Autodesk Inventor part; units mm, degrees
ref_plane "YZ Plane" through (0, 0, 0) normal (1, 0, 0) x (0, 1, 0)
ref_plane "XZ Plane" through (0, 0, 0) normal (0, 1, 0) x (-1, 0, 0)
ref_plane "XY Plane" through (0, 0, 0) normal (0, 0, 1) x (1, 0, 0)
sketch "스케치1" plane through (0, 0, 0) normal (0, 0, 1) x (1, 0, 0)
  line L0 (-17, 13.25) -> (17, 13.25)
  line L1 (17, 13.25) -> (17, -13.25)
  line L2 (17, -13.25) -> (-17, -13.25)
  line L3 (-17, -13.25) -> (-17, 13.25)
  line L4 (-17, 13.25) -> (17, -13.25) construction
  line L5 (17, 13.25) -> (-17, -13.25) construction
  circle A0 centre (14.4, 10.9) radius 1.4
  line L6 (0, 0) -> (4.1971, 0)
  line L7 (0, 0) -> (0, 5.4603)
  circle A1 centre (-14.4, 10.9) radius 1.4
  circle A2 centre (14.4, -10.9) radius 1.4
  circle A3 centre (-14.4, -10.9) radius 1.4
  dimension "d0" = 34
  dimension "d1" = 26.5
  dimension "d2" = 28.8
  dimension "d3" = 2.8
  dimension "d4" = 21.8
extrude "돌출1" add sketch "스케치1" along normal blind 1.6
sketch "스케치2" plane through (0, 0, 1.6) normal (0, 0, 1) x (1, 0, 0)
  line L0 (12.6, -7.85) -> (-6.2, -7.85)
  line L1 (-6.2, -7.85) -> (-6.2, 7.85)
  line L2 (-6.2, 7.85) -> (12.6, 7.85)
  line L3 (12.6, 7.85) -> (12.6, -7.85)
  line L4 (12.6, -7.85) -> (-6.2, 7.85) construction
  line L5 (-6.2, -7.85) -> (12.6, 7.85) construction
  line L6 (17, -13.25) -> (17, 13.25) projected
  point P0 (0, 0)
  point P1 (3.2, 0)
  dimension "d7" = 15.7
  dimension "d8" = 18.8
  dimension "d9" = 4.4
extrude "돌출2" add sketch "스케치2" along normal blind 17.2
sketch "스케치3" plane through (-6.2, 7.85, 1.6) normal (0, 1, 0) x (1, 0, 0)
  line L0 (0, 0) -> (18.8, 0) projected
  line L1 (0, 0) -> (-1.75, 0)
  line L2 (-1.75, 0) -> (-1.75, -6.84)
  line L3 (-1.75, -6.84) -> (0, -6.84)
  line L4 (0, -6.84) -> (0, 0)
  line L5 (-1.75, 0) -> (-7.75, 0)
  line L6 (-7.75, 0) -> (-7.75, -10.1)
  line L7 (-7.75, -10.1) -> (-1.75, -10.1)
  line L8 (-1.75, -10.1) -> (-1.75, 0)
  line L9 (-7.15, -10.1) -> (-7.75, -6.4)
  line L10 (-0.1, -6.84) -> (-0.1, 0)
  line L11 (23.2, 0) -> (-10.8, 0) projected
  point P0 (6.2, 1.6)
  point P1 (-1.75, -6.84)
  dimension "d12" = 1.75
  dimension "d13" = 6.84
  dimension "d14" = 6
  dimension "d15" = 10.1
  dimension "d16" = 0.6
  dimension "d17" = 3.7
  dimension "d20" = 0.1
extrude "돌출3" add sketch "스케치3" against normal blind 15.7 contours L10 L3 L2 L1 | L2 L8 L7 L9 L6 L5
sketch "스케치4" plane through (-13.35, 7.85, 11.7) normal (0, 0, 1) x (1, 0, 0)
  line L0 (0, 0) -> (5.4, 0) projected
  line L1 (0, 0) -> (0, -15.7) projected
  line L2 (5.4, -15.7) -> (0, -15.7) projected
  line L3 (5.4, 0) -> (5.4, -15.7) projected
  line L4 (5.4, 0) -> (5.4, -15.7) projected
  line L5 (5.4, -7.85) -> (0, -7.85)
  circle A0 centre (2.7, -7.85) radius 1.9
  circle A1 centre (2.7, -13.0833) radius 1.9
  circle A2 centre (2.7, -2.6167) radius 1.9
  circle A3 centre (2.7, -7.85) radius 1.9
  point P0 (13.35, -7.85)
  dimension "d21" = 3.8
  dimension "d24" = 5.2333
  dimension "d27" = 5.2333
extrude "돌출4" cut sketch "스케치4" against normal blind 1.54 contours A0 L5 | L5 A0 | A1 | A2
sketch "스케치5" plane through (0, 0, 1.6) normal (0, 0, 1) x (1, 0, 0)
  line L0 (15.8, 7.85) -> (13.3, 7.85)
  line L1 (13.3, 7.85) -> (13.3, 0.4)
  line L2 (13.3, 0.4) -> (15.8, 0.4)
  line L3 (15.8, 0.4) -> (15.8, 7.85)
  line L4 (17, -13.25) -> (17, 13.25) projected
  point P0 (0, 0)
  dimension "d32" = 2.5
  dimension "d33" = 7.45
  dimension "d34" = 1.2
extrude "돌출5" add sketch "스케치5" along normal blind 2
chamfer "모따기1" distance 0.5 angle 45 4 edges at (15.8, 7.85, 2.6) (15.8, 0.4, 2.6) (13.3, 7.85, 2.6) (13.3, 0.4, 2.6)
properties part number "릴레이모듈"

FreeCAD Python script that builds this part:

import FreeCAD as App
import Part
import Sketcher

V = App.Vector


def edges_at(feature, points):
    """Names of the edges that pass closest to the given points."""
    edges = feature.Shape.Edges
    near = lambda p: min(range(len(edges)), key=lambda i: edges[i].distToShape(Part.Vertex(*p))[0])
    return sorted({f"Edge{near(p) + 1}" for p in points})


def add_polygon(sketch, points):
    """Adds a closed chain of lines whose ends are joined by coincident constraints."""
    first, n = sketch.GeometryCount, len(points)
    for a, b in zip(points, points[1:] + points[:1]):
        sketch.addGeometry(Part.LineSegment(App.Vector(*a, 0), App.Vector(*b, 0)), False)
    for i in range(n):
        sketch.addConstraint(Sketcher.Constraint("Coincident", first + i, 2, first + (i + 1) % n, 1))

doc = App.newDocument("Part")
body = doc.addObject("PartDesign::Body", "Body")

sketch1 = body.newObject("Sketcher::SketchObject", "Sketch")
sketch1.AttachmentSupport = (doc.getObject("XY_Plane"), [""])
sketch1.MapMode = "FlatFace"
add_polygon(sketch1, [(17, 13.2), (-17, 13.2), (-17, -13.2), (17, -13.2)])
sketch1.addGeometry(Part.Circle(V(-14.4, -10.9, 0), V(0, 0, 1), 1.4), False)
sketch1.addGeometry(Part.Circle(V(14.4, -10.9, 0), V(0, 0, 1), 1.4), False)
sketch1.addGeometry(Part.Circle(V(-14.4, 10.9, 0), V(0, 0, 1), 1.4), False)
sketch1.addGeometry(Part.Circle(V(14.4, 10.9, 0), V(0, 0, 1), 1.4), False)
sketch1.addConstraint([
    Sketcher.Constraint("Horizontal", 0),
    Sketcher.Constraint("Vertical", 1),
    Sketcher.Constraint("Horizontal", 2),
    Sketcher.Constraint("Vertical", 3),
    Sketcher.Constraint("Equal", 4, 5),
    Sketcher.Constraint("Equal", 5, 6),
    Sketcher.Constraint("Equal", 6, 7),
    Sketcher.Constraint("Symmetric", 5, 3, 6, 3, -1, 1),
    Sketcher.Constraint("Symmetric", 4, 3, 7, 3, -1, 1),
    Sketcher.Constraint("Symmetric", 0, 2, 2, 2, -1, 1),
    Sketcher.Constraint("Symmetric", 4, 3, 5, 3, -2),
    Sketcher.Constraint("Diameter", 4, 2.8),
    Sketcher.Constraint("DistanceX", 0, 2, 0, 1, 34.0),
    Sketcher.Constraint("DistanceY", 1, 2, 1, 1, 26.5),
    Sketcher.Constraint("DistanceX", 4, 3, 5, 3, 28.8),
    Sketcher.Constraint("DistanceY", 4, 3, 6, 3, 21.8),
])
pad1 = body.newObject("PartDesign::Pad", "Pad")
pad1.Profile = sketch1
pad1.Length = 1.6

sketch2 = body.newObject("Sketcher::SketchObject", "Sketch001")
sketch2.AttachmentSupport = (doc.getObject("XY_Plane"), [""])
sketch2.MapMode = "FlatFace"
sketch2.AttachmentOffset = App.Placement(V(0, 0, 1.6), App.Rotation())
add_polygon(sketch2, [(-6, -8), (13, -8), (13, 8), (-6, 8)])
sketch2.addConstraint([
    Sketcher.Constraint("Horizontal", 0),
    Sketcher.Constraint("Vertical", 1),
    Sketcher.Constraint("Horizontal", 2),
    Sketcher.Constraint("Vertical", 3),
    Sketcher.Constraint("DistanceX", 0, 1, 0, 2, 18.8),
    Sketcher.Constraint("DistanceY", 1, 1, 1, 2, 15.7),
    Sketcher.Constraint("DistanceX", -1, 1, 0, 2, 12.6),
    Sketcher.Constraint("DistanceY", 0, 2, -1, 1, 7.85),
])
pad2 = body.newObject("PartDesign::Pad", "Pad001")
pad2.Profile = sketch2
pad2.Length = 17.2

sketch3 = body.newObject("Sketcher::SketchObject", "Sketch002")
sketch3.AttachmentSupport = (doc.getObject("XZ_Plane"), [""])
sketch3.MapMode = "FlatFace"
sketch3.AttachmentOffset = App.Placement(V(0, 0, -7.85), App.Rotation())
add_polygon(sketch3, [(-6.3, 8.4), (-6.3, 1.6), (-13.9, 1.6), (-13.9, 8), (-13.3, 11.7), (-8, 11.7), (-8, 8.4)])
sketch3.addConstraint([
    Sketcher.Constraint("Vertical", 0),
    Sketcher.Constraint("Horizontal", 1),
    Sketcher.Constraint("Vertical", 2),
    Sketcher.Constraint("Horizontal", 4),
    Sketcher.Constraint("Vertical", 5),
    Sketcher.Constraint("Horizontal", 6),
    Sketcher.Constraint("DistanceX", 2, 2, 4, 2, 6.0),
    Sketcher.Constraint("DistanceY", 0, 2, 0, 1, 6.84),
    Sketcher.Constraint("DistanceX", 2, 2, 3, 2, 0.6),
    Sketcher.Constraint("DistanceY", 2, 2, 3, 2, 3.7),
    Sketcher.Constraint("DistanceY", 1, 2, 3, 2, 10.1),
    Sketcher.Constraint("DistanceY", -1, 1, 2, 2, 8.0),
    Sketcher.Constraint("DistanceX", 1, 2, 1, 1, 7.65),
    Sketcher.Constraint("DistanceX", 0, 2, -1, 1, 6.3),
])
pad3 = body.newObject("PartDesign::Pad", "Pad002")
pad3.Profile = sketch3
pad3.Length = 15.7

sketch4 = body.newObject("Sketcher::SketchObject", "Sketch003")
sketch4.AttachmentSupport = (doc.getObject("XY_Plane"), [""])
sketch4.MapMode = "FlatFace"
sketch4.AttachmentOffset = App.Placement(V(0, 0, 11.7), App.Rotation())
sketch4.addGeometry([
    Part.Circle(V(-10.7, 0, 0), V(0, 0, 1), 1.9),
    Part.Circle(V(-10.7, -5.2, 0), V(0, 0, 1), 1.9),
    Part.Circle(V(-10.7, 5.2, 0), V(0, 0, 1), 1.9),
], False)
sketch4.addConstraint([
    Sketcher.Constraint("Equal", 0, 1),
    Sketcher.Constraint("Equal", 1, 2),
    Sketcher.Constraint("Symmetric", 1, 3, 2, 3, -1),
    Sketcher.Constraint("PointOnObject", 0, 3, -1),
    Sketcher.Constraint("Vertical", 0, 3, 1, 3),
    Sketcher.Constraint("Diameter", 0, 3.8),
    Sketcher.Constraint("DistanceY", 1, 3, -1, 1, 5.2333),
    Sketcher.Constraint("DistanceX", 0, 3, -1, 1, 10.65),
])
pocket1 = body.newObject("PartDesign::Pocket", "Pocket")
pocket1.Profile = sketch4
pocket1.Length = 1.54

sketch5 = body.newObject("Sketcher::SketchObject", "Sketch004")
sketch5.AttachmentSupport = (doc.getObject("XY_Plane"), [""])
sketch5.MapMode = "FlatFace"
sketch5.AttachmentOffset = App.Placement(V(0, 0, 1.6), App.Rotation())
add_polygon(sketch5, [(15.8, 0.4), (15.8, 7.8), (13.3, 7.8), (13.3, 0.4)])
sketch5.addConstraint([
    Sketcher.Constraint("Vertical", 0),
    Sketcher.Constraint("Horizontal", 1),
    Sketcher.Constraint("Vertical", 2),
    Sketcher.Constraint("Horizontal", 3),
    Sketcher.Constraint("DistanceX", 1, 2, 1, 1, 2.5),
    Sketcher.Constraint("DistanceY", 0, 1, 0, 2, 7.45),
    Sketcher.Constraint("DistanceX", -1, 1, 0, 2, 15.8),
    Sketcher.Constraint("DistanceY", -1, 1, 2, 2, 0.4),
])
pad4 = body.newObject("PartDesign::Pad", "Pad003")
pad4.Profile = sketch5
pad4.Length = 2
doc.recompute()

chamfer = body.newObject("PartDesign::Chamfer", "Chamfer")
chamfer.Base = (pad4, edges_at(pad4, [
    (15.8, 7.85, 2.6),
    (15.8, 0.4, 2.6),
    (13.3, 7.85, 2.6),
    (13.3, 0.4, 2.6),
]))
chamfer.Size = 0.5

doc.recompute()
